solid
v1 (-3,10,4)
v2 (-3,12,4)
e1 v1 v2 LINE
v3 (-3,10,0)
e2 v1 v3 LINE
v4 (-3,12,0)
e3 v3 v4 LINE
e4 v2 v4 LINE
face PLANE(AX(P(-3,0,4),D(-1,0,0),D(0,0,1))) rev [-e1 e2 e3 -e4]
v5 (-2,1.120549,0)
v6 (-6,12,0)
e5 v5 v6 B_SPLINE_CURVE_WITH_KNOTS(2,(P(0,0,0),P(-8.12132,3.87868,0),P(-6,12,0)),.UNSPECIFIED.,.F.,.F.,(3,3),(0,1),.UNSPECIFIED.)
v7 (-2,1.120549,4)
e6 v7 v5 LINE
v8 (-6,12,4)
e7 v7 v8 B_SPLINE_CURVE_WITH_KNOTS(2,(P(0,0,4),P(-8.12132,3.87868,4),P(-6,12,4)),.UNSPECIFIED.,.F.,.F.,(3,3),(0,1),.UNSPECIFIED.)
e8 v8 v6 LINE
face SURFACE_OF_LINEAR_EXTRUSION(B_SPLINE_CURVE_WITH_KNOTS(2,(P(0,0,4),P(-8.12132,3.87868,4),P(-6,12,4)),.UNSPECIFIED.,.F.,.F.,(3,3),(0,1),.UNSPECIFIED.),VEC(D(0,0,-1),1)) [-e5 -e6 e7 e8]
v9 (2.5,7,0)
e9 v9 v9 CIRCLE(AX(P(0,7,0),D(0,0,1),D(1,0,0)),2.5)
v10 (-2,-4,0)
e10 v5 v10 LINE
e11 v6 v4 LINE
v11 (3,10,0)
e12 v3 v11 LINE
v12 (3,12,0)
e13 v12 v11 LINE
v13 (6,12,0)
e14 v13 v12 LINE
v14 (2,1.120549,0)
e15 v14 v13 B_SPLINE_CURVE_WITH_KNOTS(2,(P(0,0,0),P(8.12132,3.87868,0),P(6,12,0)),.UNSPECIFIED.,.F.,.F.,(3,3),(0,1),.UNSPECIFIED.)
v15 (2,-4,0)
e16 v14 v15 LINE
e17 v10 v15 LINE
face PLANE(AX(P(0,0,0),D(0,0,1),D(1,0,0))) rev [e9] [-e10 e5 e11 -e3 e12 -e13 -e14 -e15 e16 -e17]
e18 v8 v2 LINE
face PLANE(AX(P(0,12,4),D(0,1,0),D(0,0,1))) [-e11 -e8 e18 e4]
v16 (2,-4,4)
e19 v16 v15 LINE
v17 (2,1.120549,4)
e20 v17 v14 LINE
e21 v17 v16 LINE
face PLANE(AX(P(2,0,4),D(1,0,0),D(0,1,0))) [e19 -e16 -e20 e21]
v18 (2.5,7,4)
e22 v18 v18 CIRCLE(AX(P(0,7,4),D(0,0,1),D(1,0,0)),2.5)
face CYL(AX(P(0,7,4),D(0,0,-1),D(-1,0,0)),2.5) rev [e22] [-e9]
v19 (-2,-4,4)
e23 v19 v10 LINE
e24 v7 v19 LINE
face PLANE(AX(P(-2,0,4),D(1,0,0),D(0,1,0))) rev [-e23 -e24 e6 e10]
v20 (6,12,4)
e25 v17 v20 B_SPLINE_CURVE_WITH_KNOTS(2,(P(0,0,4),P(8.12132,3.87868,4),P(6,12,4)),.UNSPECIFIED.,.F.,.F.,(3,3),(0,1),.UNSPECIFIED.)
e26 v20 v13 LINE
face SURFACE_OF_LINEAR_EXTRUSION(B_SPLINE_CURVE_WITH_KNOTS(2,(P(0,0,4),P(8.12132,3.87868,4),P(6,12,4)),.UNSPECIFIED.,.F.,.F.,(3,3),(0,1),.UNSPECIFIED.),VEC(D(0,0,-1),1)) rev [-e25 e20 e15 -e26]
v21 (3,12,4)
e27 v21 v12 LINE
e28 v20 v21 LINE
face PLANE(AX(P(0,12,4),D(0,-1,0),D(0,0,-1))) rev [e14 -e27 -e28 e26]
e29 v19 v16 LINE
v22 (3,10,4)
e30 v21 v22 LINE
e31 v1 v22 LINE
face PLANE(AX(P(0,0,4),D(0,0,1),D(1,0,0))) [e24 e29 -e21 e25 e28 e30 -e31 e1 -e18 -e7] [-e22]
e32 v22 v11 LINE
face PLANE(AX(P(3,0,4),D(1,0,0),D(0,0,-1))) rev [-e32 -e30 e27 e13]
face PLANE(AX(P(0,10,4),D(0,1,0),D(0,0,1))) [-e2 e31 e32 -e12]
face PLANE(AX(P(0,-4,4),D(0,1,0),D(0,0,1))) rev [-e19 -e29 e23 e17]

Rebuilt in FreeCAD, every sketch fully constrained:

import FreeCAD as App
import Part
import Sketcher
from FreeCAD import Vector
Q = App.Units.Quantity

doc = App.newDocument("Part")
body = doc.addObject("PartDesign::Body", "Body")

sketch1 = body.newObject("Sketcher::SketchObject", "Sketch")
sketch1.AttachmentSupport = (doc.getObject("XY_Plane"), [""])
sketch1.MapMode = "FlatFace"
sketch1.addGeometry(Part.LineSegment(Vector(2, -4, 0), Vector(2, 1.120549, 0)), False)
sketch1.addGeometry(Part.BSplineCurve([Vector(2, 1.120549, 0), Vector(7.835899, 4.971393, 0), Vector(6, 12, 0)], [3, 3], [0.134548696, 1], False, 2, [1, 1, 1], False), False)
sketch1.addGeometry(Part.LineSegment(Vector(6, 12, 0), Vector(3, 12, 0)), False)
sketch1.addGeometry(Part.LineSegment(Vector(3, 12, 0), Vector(3, 10, 0)), False)
sketch1.addGeometry(Part.LineSegment(Vector(3, 10, 0), Vector(-3, 10, 0)), False)
sketch1.addGeometry(Part.LineSegment(Vector(-3, 10, 0), Vector(-3, 12, 0)), False)
sketch1.addGeometry(Part.LineSegment(Vector(-3, 12, 0), Vector(-6, 12, 0)), False)
sketch1.addGeometry(Part.BSplineCurve([Vector(-2, 1.120549, 0), Vector(-7.835899, 4.971393, 0), Vector(-6, 12, 0)], [3, 3], [0.134548696, 1], False, 2, [1, 1, 1], False), False)
sketch1.addGeometry(Part.LineSegment(Vector(-2, 1.120549, 0), Vector(-2, -4, 0)), False)
sketch1.addGeometry(Part.LineSegment(Vector(-2, -4, 0), Vector(2, -4, 0)), False)
sketch1.addGeometry(Part.Circle(Vector(0, 7, 0), Vector(0, 0, 1), 2.5), False)
sketch1.addConstraint(Sketcher.Constraint("Block", 1))
sketch1.addConstraint(Sketcher.Constraint("Block", 7))
sketch1.addConstraint(Sketcher.Constraint("Coincident", 0, 2, 1, 1))
sketch1.addConstraint(Sketcher.Constraint("Coincident", 1, 2, 2, 1))
sketch1.addConstraint(Sketcher.Constraint("Coincident", 2, 2, 3, 1))
sketch1.addConstraint(Sketcher.Constraint("Coincident", 3, 2, 4, 1))
sketch1.addConstraint(Sketcher.Constraint("Coincident", 4, 2, 5, 1))
sketch1.addConstraint(Sketcher.Constraint("Coincident", 5, 2, 6, 1))
sketch1.addConstraint(Sketcher.Constraint("Coincident", 6, 2, 7, 2))
sketch1.addConstraint(Sketcher.Constraint("Coincident", 7, 1, 8, 1))
sketch1.addConstraint(Sketcher.Constraint("Coincident", 8, 2, 9, 1))
sketch1.addConstraint(Sketcher.Constraint("Coincident", 9, 2, 0, 1))
sketch1.addConstraint(Sketcher.Constraint("Vertical", 0))
sketch1.addConstraint(Sketcher.Constraint("Horizontal", 2))
sketch1.addConstraint(Sketcher.Constraint("Vertical", 3))
sketch1.addConstraint(Sketcher.Constraint("Horizontal", 4))
sketch1.addConstraint(Sketcher.Constraint("Vertical", 5))
sketch1.addConstraint(Sketcher.Constraint("Horizontal", 6))
sketch1.addConstraint(Sketcher.Constraint("Vertical", 8))
sketch1.addConstraint(Sketcher.Constraint("Horizontal", 9))
sketch1.addConstraint(Sketcher.Constraint("PointOnObject", 10, 3, -2))
sketch1.addConstraint(Sketcher.Constraint("Equal", 2, 6))
sketch1.addConstraint(Sketcher.Constraint("Diameter", 10, Q("5 mm")))
sketch1.addConstraint(Sketcher.Constraint("DistanceX", 2, 2, 2, 1, Q("3 mm")))
sketch1.addConstraint(Sketcher.Constraint("DistanceY", 3, 2, 3, 1, Q("2 mm")))
sketch1.addConstraint(Sketcher.Constraint("DistanceY", -1, 1, 10, 3, Q("7 mm")))
sketch1.addConstraint(Sketcher.Constraint("DistanceY", 8, 2, -1, 1, Q("4 mm")))
pad1 = body.newObject("PartDesign::Pad", "Pad")
pad1.Profile = sketch1
pad1.Length = 4

doc.recompute()
